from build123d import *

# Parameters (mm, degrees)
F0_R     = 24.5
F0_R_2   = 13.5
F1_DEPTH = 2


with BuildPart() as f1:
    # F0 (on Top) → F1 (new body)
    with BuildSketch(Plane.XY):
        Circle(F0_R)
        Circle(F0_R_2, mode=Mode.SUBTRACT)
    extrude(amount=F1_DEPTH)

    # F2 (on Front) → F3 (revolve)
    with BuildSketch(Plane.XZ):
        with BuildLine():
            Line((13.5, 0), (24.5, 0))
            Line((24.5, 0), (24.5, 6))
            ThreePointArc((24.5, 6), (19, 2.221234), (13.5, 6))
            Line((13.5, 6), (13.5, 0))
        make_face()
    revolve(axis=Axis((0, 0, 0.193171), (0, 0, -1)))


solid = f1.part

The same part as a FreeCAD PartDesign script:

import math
import FreeCAD as App
import Part
import Sketcher

V = App.Vector
Q = App.Units.Quantity

doc = App.newDocument("Part")
params = doc.addObject("Spreadsheet::Sheet", "Params")
for row, (alias, value) in enumerate([
    ("sketch1_diameter", "49 mm"),
    ("sketch1_diameter2", "27 mm"),
    ("pad1_length", "2 mm"),
    ("sketch2_width", "11 mm"),
    ("sketch2_height", "6 mm"),
    ("revolution_angle", "360 deg"),
], start=1):
    params.set(f"A{row}", alias)
    params.set(f"B{row}", "=" + value)
    params.setAlias(f"B{row}", alias)

body = doc.addObject("PartDesign::Body", "Body")

# Sketch on XY plane
sketch1 = body.newObject("Sketcher::SketchObject", "Sketch")
sketch1.AttachmentSupport = (doc.getObject("XY_Plane"), [""])
sketch1.MapMode = "FlatFace"
sketch1.addGeometry([
    Part.Circle(V(0, 0, 0), V(0, 0, 1), 24),
    Part.Circle(V(0, 0, 0), V(0, 0, 1), 14),
], False)
sketch1.addConstraint([
    Sketcher.Constraint("Coincident", 0, 3, -1, 1),
    Sketcher.Constraint("Coincident", 1, 3, -1, 1),
    Sketcher.Constraint("Diameter", 0, Q("49 mm")),
    Sketcher.Constraint("Diameter", 1, Q("27 mm")),
])
sketch1.setExpression("Constraints[2]", "Params.sketch1_diameter")
sketch1.setExpression("Constraints[3]", "Params.sketch1_diameter2")
pad1 = body.newObject("PartDesign::Pad", "Pad")
pad1.Profile = sketch1
pad1.setExpression("Length", "Params.pad1_length")

# Sketch on XZ plane
sketch2 = body.newObject("Sketcher::SketchObject", "Sketch001")
sketch2.AttachmentSupport = (doc.getObject("XZ_Plane"), [""])
sketch2.MapMode = "FlatFace"
sketch2.addGeometry([
    Part.LineSegment(V(14, 0, 0), V(24, 0, 0)),
    Part.LineSegment(V(24, 0, 0), V(24, 6, 0)),
    Part.ArcOfCircle(Part.Circle(V(19, 8, 0), V(0, 0, 1), 6), math.radians(-159), math.radians(-21)),
    Part.LineSegment(V(14, 6, 0), V(14, 0, 0)),
], False)
sketch2.addConstraint([
    Sketcher.Constraint("Coincident", 0, 2, 1, 1),
    Sketcher.Constraint("Coincident", 1, 2, 2, 2),
    Sketcher.Constraint("Coincident", 2, 1, 3, 1),
    Sketcher.Constraint("Coincident", 3, 2, 0, 1),
    Sketcher.Constraint("Horizontal", 0),
    Sketcher.Constraint("Vertical", 1),
    Sketcher.Constraint("Vertical", 3),
    Sketcher.Constraint("PointOnObject", 0, 2, -1),
    Sketcher.Constraint("Horizontal", 1, 2, 2, 1),
    Sketcher.Constraint("DistanceX", 0, 1, 0, 2, Q("11 mm")),
    Sketcher.Constraint("DistanceY", 1, 1, 1, 2, Q("6 mm")),
    Sketcher.Constraint("DistanceX", -1, 1, 2, 3, Q("19 mm")),
    Sketcher.Constraint("Radius", 2, Q("5.892012 mm")),
])
sketch2.setExpression("Constraints[9]", "Params.sketch2_width")
sketch2.setExpression("Constraints[10]", "Params.sketch2_height")
revolution = body.newObject("PartDesign::Revolution", "Revolution")
revolution.Profile = sketch2
revolution.ReferenceAxis = (sketch2, ["V_Axis"])
revolution.setExpression("Angle", "Params.revolution_angle")

doc.recompute()
